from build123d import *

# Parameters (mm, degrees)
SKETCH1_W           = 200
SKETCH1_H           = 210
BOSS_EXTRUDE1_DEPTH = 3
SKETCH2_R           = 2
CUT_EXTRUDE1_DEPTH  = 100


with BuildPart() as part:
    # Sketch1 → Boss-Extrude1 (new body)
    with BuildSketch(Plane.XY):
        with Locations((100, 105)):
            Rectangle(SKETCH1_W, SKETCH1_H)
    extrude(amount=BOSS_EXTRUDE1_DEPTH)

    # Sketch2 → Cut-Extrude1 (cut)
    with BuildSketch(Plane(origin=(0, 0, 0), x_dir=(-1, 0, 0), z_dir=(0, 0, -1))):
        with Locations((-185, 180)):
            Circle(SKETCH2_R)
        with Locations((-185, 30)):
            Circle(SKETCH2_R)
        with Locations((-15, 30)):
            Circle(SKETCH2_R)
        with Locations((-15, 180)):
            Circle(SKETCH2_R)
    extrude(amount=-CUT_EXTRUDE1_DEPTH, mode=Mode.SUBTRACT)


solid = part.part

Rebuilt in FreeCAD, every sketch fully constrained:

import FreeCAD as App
import Part
import Sketcher
from FreeCAD import Vector
Q = App.Units.Quantity

doc = App.newDocument("Part")
body = doc.addObject("PartDesign::Body", "Body")

# Sketch on XY plane
sketch1 = doc.addObject("Sketcher::SketchObject", "Sketch")
body.addObject(sketch1)
sketch1.AttachmentSupport = (doc.XY_Plane, [""])
sketch1.MapMode = "FlatFace"
sketch1.addGeometry(Part.LineSegment(Vector(0, 210, 0), Vector(0, 0, 0)), False)
sketch1.addGeometry(Part.LineSegment(Vector(0, 0, 0), Vector(200, 0, 0)), False)
sketch1.addGeometry(Part.LineSegment(Vector(200, 0, 0), Vector(200, 210, 0)), False)
sketch1.addGeometry(Part.LineSegment(Vector(200, 210, 0), Vector(0, 210, 0)), False)
sketch1.addConstraint(Sketcher.Constraint("Coincident", 0, 2, 1, 1))
sketch1.addConstraint(Sketcher.Constraint("Coincident", 1, 2, 2, 1))
sketch1.addConstraint(Sketcher.Constraint("Coincident", 2, 2, 3, 1))
sketch1.addConstraint(Sketcher.Constraint("Coincident", 3, 2, 0, 1))
sketch1.addConstraint(Sketcher.Constraint("Vertical", 0))
sketch1.addConstraint(Sketcher.Constraint("Horizontal", 1))
sketch1.addConstraint(Sketcher.Constraint("Vertical", 2))
sketch1.addConstraint(Sketcher.Constraint("Horizontal", 3))
sketch1.addConstraint(Sketcher.Constraint("Coincident", 0, 2, -1, 1))
sketch1.addConstraint(Sketcher.Constraint("DistanceX", 1, 1, 1, 2, Q("200 mm")))
sketch1.addConstraint(Sketcher.Constraint("DistanceY", 0, 2, 0, 1, Q("210 mm")))
pad1 = doc.addObject("PartDesign::Pad", "Pad")
body.addObject(pad1)
pad1.Profile = sketch1
pad1.Length = 3

# Sketch on XY plane
sketch2 = doc.addObject("Sketcher::SketchObject", "Sketch001")
body.addObject(sketch2)
sketch2.AttachmentSupport = (doc.XY_Plane, [""])
sketch2.MapMode = "FlatFace"
sketch2.addGeometry(Part.Circle(Vector(185, 180, 0), Vector(0, 0, 1), 2), False)
sketch2.addGeometry(Part.Circle(Vector(185, 30, 0), Vector(0, 0, 1), 2), False)
sketch2.addGeometry(Part.Circle(Vector(15, 30, 0), Vector(0, 0, 1), 2), False)
sketch2.addGeometry(Part.Circle(Vector(15, 180, 0), Vector(0, 0, 1), 2), False)
sketch2.addConstraint(Sketcher.Constraint("Equal", 0, 1))
sketch2.addConstraint(Sketcher.Constraint("Equal", 1, 2))
sketch2.addConstraint(Sketcher.Constraint("Equal", 2, 3))
sketch2.addConstraint(Sketcher.Constraint("Horizontal", 1, 3, 2, 3))
sketch2.addConstraint(Sketcher.Constraint("Horizontal", 0, 3, 3, 3))
sketch2.addConstraint(Sketcher.Constraint("Vertical", 0, 3, 1, 3))
sketch2.addConstraint(Sketcher.Constraint("Vertical", 2, 3, 3, 3))
sketch2.addConstraint(Sketcher.Constraint("Diameter", 0, Q("4 mm")))
sketch2.addConstraint(Sketcher.Constraint("DistanceX", -1, 1, 0, 3, Q("185 mm")))
sketch2.addConstraint(Sketcher.Constraint("DistanceY", -1, 1, 0, 3, Q("180 mm")))
sketch2.addConstraint(Sketcher.Constraint("DistanceY", -1, 1, 1, 3, Q("30 mm")))
sketch2.addConstraint(Sketcher.Constraint("DistanceX", -1, 1, 2, 3, Q("15 mm")))
pocket1 = doc.addObject("PartDesign::Pocket", "Pocket")
body.addObject(pocket1)
pocket1.Profile = sketch2
pocket1.Length = 100
pocket1.Reversed = True

doc.recompute()
